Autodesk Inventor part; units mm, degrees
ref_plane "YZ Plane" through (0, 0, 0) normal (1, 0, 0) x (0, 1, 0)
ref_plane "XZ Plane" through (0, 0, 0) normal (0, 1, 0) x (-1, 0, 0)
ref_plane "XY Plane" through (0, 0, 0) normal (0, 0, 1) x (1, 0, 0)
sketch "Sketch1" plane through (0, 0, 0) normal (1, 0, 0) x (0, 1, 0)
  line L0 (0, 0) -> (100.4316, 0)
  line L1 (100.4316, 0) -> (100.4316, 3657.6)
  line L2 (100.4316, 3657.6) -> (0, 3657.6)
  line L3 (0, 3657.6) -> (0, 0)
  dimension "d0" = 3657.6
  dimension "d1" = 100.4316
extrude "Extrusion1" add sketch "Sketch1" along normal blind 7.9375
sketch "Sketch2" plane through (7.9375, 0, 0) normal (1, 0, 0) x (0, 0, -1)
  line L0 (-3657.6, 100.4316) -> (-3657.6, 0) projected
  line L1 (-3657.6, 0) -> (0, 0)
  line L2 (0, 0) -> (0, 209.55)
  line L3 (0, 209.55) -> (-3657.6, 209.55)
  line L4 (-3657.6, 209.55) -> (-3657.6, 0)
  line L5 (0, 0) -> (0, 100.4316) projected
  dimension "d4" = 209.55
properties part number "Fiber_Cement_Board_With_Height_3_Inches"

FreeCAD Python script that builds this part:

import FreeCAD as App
import Part
import Sketcher
from FreeCAD import Vector
Q = App.Units.Quantity

doc = App.newDocument("Part")
body = doc.addObject("PartDesign::Body", "Body")

sketch1 = body.newObject("Sketcher::SketchObject", "Sketch")
sketch1.AttachmentSupport = (doc.getObject("YZ_Plane"), [""])
sketch1.MapMode = "FlatFace"
sketch1.addGeometry(Part.LineSegment(Vector(0, 3658, 0), Vector(0, 0, 0)), False)
sketch1.addGeometry(Part.LineSegment(Vector(0, 0, 0), Vector(100, 0, 0)), False)
sketch1.addGeometry(Part.LineSegment(Vector(100, 0, 0), Vector(100, 3658, 0)), False)
sketch1.addGeometry(Part.LineSegment(Vector(100, 3658, 0), Vector(0, 3658, 0)), False)
sketch1.addConstraint(Sketcher.Constraint("Coincident", 0, 2, 1, 1))
sketch1.addConstraint(Sketcher.Constraint("Coincident", 1, 2, 2, 1))
sketch1.addConstraint(Sketcher.Constraint("Coincident", 2, 2, 3, 1))
sketch1.addConstraint(Sketcher.Constraint("Coincident", 3, 2, 0, 1))
sketch1.addConstraint(Sketcher.Constraint("Vertical", 0))
sketch1.addConstraint(Sketcher.Constraint("Horizontal", 1))
sketch1.addConstraint(Sketcher.Constraint("Vertical", 2))
sketch1.addConstraint(Sketcher.Constraint("Horizontal", 3))
sketch1.addConstraint(Sketcher.Constraint("Coincident", 0, 2, -1, 1))
sketch1.addConstraint(Sketcher.Constraint("DistanceY", 0, 2, 0, 1, Q("144 in")))
sketch1.addConstraint(Sketcher.Constraint("DistanceX", 1, 1, 1, 2, Q("3.954 in")))
pad1 = body.newObject("PartDesign::Pad", "Pad")
pad1.Profile = sketch1
pad1.Length = Q("0.3125 in")

doc.recompute()
